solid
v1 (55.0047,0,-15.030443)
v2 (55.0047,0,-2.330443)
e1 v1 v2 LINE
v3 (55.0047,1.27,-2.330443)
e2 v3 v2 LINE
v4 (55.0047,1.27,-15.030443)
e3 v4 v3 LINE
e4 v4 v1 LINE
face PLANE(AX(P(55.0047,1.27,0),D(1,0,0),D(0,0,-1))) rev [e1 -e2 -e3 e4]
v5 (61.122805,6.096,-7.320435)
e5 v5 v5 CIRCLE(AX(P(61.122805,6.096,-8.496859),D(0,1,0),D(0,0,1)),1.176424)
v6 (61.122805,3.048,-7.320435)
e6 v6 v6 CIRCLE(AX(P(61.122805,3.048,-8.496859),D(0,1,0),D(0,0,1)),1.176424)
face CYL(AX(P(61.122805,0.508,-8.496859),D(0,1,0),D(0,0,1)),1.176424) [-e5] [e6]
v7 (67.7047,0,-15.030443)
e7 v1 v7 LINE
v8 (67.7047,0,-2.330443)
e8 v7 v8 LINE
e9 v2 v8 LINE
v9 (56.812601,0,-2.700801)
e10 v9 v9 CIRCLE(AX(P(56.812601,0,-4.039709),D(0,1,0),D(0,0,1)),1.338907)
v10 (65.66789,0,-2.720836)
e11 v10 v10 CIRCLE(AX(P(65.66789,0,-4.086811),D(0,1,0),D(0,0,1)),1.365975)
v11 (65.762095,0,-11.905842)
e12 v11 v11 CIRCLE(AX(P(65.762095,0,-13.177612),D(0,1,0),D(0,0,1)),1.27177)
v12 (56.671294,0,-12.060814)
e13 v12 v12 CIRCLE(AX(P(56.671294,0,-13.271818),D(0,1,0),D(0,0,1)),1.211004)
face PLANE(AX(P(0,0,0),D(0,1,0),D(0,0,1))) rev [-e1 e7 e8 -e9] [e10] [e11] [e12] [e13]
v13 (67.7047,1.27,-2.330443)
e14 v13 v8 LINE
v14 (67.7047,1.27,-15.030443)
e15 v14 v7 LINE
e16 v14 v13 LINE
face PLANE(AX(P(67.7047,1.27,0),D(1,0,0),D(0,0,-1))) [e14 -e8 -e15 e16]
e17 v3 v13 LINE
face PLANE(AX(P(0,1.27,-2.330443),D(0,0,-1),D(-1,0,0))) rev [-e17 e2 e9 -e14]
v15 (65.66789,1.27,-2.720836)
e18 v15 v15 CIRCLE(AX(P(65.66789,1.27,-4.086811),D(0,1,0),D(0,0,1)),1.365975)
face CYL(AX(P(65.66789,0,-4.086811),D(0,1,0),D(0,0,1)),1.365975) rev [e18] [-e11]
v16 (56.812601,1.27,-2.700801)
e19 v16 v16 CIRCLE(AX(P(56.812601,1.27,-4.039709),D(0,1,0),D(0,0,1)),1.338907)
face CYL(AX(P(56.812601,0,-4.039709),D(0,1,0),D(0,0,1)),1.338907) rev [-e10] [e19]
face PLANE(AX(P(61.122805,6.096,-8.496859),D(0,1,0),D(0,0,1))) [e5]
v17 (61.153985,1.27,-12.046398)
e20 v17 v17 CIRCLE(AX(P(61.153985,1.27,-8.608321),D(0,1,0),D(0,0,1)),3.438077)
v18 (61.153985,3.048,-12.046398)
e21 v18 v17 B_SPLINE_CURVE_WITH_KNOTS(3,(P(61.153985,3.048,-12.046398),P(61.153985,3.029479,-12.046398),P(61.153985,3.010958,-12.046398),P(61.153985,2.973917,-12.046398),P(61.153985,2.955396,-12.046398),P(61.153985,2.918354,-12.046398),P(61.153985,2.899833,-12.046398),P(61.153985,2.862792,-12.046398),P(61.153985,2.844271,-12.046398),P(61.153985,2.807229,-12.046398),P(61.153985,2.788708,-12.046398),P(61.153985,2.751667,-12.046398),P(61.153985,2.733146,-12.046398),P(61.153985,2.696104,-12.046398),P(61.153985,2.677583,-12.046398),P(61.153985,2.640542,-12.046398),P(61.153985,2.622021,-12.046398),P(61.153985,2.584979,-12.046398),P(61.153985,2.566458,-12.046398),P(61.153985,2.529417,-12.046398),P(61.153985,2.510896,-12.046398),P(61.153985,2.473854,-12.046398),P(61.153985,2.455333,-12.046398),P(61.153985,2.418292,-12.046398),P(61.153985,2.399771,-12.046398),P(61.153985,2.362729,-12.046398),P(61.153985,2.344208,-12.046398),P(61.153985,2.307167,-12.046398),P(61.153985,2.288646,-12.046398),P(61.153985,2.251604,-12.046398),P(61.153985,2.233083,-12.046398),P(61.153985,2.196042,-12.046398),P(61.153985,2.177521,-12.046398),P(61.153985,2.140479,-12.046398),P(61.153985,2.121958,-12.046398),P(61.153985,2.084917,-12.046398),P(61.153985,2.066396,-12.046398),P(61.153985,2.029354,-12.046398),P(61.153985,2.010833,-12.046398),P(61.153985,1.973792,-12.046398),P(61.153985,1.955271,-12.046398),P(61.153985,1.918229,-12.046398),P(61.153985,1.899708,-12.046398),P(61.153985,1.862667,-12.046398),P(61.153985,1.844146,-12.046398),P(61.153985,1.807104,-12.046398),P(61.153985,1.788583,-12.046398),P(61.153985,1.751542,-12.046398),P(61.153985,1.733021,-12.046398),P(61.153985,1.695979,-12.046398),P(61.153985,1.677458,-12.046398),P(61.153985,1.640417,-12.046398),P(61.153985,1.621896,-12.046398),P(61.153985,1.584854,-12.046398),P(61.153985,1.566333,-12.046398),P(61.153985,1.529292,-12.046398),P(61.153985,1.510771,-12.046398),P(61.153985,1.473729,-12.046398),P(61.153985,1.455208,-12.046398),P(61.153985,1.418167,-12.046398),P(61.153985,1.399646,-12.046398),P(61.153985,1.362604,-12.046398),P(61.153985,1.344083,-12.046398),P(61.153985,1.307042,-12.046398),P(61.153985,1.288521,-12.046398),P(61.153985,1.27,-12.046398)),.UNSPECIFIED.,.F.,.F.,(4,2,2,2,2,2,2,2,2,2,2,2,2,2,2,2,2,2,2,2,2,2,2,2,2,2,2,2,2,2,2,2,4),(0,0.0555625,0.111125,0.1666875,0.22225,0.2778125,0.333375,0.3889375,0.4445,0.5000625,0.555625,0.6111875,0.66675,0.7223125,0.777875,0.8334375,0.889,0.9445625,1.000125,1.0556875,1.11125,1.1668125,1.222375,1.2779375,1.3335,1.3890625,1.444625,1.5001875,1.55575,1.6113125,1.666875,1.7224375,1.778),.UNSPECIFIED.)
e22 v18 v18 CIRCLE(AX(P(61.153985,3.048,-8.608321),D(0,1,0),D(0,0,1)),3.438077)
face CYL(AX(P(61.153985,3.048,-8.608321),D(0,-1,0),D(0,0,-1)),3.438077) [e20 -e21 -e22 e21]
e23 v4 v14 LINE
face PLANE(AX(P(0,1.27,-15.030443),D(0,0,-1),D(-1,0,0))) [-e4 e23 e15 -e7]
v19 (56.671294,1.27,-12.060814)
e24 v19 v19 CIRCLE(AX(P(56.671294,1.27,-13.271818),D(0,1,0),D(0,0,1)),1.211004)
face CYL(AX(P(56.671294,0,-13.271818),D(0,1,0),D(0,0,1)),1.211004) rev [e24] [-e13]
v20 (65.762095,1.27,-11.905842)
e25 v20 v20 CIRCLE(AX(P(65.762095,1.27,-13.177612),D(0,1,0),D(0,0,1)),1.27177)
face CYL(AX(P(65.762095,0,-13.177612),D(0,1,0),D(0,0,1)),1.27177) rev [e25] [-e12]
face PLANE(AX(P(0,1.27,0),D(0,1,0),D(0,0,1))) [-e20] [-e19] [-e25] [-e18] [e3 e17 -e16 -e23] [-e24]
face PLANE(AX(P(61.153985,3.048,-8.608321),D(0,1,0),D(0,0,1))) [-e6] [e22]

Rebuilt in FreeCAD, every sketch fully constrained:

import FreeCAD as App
import Part
import Sketcher
Q = App.Units.Quantity


def add_polygon(sketch, points):
    """Adds a closed chain of lines whose ends are joined by coincident constraints."""
    first, n = sketch.GeometryCount, len(points)
    for a, b in zip(points, points[1:] + points[:1]):
        sketch.addGeometry(Part.LineSegment(App.Vector(*a, 0), App.Vector(*b, 0)), False)
    for i in range(n):
        sketch.addConstraint(Sketcher.Constraint("Coincident", first + i, 2, first + (i + 1) % n, 1))

doc = App.newDocument("Part")
body = doc.addObject("PartDesign::Body", "Body")

# Sketch on XZ plane
sketch1 = doc.addObject("Sketcher::SketchObject", "Sketch")
body.addObject(sketch1)
sketch1.AttachmentSupport = (doc.XZ_Plane, [""])
sketch1.MapMode = "FlatFace"
add_polygon(sketch1, [(55, -15), (55, -2), (68, -2), (68, -15)])  # lines 0-3
sketch1.addConstraint([
    Sketcher.Constraint("Vertical", 0),
    Sketcher.Constraint("Horizontal", 1),
    Sketcher.Constraint("Vertical", 2),
    Sketcher.Constraint("Horizontal", 3),
    Sketcher.Constraint("Equal", 3, 0),
    Sketcher.Constraint("DistanceX", 1, 1, 1, 2, Q("0.5 in")),
    Sketcher.Constraint("DistanceX", -1, 1, 0, 2, Q("55.0047 mm")),
    Sketcher.Constraint("DistanceY", 0, 2, -1, 1, Q("2.330443 mm")),
])
pad1 = doc.addObject("PartDesign::Pad", "Pad")
body.addObject(pad1)
pad1.Profile = sketch1
pad1.Length = Q("0.05 in")
pad1.Reversed = True

# Sketch on XZ plane
sketch2 = doc.addObject("Sketcher::SketchObject", "Sketch001")
body.addObject(sketch2)
sketch2.AttachmentSupport = (doc.XZ_Plane, [""])
sketch2.MapMode = "FlatFace"
sketch2.AttachmentOffset = App.Placement(App.Vector(0, 0, -0.05 * 25.4), App.Rotation())
sketch2.addGeometry([
    Part.Circle(App.Vector(56.7, -13.3, 0), App.Vector(0, 0, 1), 1.2),
    Part.Circle(App.Vector(65.8, -13.2, 0), App.Vector(0, 0, 1), 1.3),
    Part.Circle(App.Vector(56.8, -4, 0), App.Vector(0, 0, 1), 1.3),
    Part.Circle(App.Vector(65.7, -4.1, 0), App.Vector(0, 0, 1), 1.4),
], False)
sketch2.addConstraint([
    Sketcher.Constraint("Diameter", 1, Q("2.54354 mm")),
    Sketcher.Constraint("Diameter", 3, Q("2.731951 mm")),
    Sketcher.Constraint("Diameter", 0, Q("2.422008 mm")),
    Sketcher.Constraint("Diameter", 2, Q("2.677815 mm")),
    Sketcher.Constraint("DistanceX", -1, 1, 2, 3, Q("56.812601 mm")),
    Sketcher.Constraint("DistanceX", 0, 3, 1, 3, Q("9.090801 mm")),
    Sketcher.Constraint("DistanceY", 1, 3, 3, 3, Q("9.090801 mm")),
    Sketcher.Constraint("DistanceY", 2, 3, -1, 1, Q("4.039709 mm")),
    Sketcher.Constraint("DistanceX", -1, 1, 3, 3, Q("65.66789 mm")),
    Sketcher.Constraint("DistanceY", 3, 3, -1, 1, Q("4.086811 mm")),
    Sketcher.Constraint("DistanceY", 0, 3, 2, 3, Q("9.232109 mm")),
    Sketcher.Constraint("DistanceX", -1, 1, 0, 3, Q("56.671294 mm")),
])
pocket1 = doc.addObject("PartDesign::Pocket", "Pocket")
body.addObject(pocket1)
pocket1.Profile = sketch2
pocket1.Length = Q("0.05 in")
pocket1.Reversed = True

# Sketch on XZ plane
sketch3 = doc.addObject("Sketcher::SketchObject", "Sketch002")
body.addObject(sketch3)
sketch3.AttachmentSupport = (doc.XZ_Plane, [""])
sketch3.MapMode = "FlatFace"
sketch3.AttachmentOffset = App.Placement(App.Vector(0, 0, -0.05 * 25.4), App.Rotation())
sketch3.addGeometry(Part.Circle(App.Vector(61.2, -8.6, 0), App.Vector(0, 0, 1), 3.4), False)
sketch3.addConstraint([
    Sketcher.Constraint("Diameter", 0, Q("6.876153 mm")),
    Sketcher.Constraint("DistanceY", 0, 3, -1, 1, Q("8.608321 mm")),
    Sketcher.Constraint("DistanceX", -1, 1, 0, 3, Q("61.153985 mm")),
])
pad2 = doc.addObject("PartDesign::Pad", "Pad001")
body.addObject(pad2)
pad2.Profile = sketch3
pad2.Length = Q("0.07 in")
pad2.Reversed = True

# Sketch on XZ plane
sketch4 = doc.addObject("Sketcher::SketchObject", "Sketch003")
body.addObject(sketch4)
sketch4.AttachmentSupport = (doc.XZ_Plane, [""])
sketch4.MapMode = "FlatFace"
sketch4.AttachmentOffset = App.Placement(App.Vector(0, 0, -0.12 * 25.4), App.Rotation())
sketch4.addGeometry(Part.Circle(App.Vector(61.1, -8.5, 0), App.Vector(0, 0, 1), 1.2), False)
sketch4.addConstraint([
    Sketcher.Constraint("Diameter", 0, Q("2.352849 mm")),
    Sketcher.Constraint("DistanceY", 0, 3, -1, 1, Q("8.496859 mm")),
    Sketcher.Constraint("DistanceX", -1, 1, 0, 3, Q("61.122805 mm")),
])
pad3 = doc.addObject("PartDesign::Pad", "Pad002")
body.addObject(pad3)
pad3.Profile = sketch4
pad3.Type = "TwoLengths"
pad3.Length = Q("0.12 in")
pad3.Length2 = Q("0.1 in")
pad3.Reversed = True

doc.recompute()
